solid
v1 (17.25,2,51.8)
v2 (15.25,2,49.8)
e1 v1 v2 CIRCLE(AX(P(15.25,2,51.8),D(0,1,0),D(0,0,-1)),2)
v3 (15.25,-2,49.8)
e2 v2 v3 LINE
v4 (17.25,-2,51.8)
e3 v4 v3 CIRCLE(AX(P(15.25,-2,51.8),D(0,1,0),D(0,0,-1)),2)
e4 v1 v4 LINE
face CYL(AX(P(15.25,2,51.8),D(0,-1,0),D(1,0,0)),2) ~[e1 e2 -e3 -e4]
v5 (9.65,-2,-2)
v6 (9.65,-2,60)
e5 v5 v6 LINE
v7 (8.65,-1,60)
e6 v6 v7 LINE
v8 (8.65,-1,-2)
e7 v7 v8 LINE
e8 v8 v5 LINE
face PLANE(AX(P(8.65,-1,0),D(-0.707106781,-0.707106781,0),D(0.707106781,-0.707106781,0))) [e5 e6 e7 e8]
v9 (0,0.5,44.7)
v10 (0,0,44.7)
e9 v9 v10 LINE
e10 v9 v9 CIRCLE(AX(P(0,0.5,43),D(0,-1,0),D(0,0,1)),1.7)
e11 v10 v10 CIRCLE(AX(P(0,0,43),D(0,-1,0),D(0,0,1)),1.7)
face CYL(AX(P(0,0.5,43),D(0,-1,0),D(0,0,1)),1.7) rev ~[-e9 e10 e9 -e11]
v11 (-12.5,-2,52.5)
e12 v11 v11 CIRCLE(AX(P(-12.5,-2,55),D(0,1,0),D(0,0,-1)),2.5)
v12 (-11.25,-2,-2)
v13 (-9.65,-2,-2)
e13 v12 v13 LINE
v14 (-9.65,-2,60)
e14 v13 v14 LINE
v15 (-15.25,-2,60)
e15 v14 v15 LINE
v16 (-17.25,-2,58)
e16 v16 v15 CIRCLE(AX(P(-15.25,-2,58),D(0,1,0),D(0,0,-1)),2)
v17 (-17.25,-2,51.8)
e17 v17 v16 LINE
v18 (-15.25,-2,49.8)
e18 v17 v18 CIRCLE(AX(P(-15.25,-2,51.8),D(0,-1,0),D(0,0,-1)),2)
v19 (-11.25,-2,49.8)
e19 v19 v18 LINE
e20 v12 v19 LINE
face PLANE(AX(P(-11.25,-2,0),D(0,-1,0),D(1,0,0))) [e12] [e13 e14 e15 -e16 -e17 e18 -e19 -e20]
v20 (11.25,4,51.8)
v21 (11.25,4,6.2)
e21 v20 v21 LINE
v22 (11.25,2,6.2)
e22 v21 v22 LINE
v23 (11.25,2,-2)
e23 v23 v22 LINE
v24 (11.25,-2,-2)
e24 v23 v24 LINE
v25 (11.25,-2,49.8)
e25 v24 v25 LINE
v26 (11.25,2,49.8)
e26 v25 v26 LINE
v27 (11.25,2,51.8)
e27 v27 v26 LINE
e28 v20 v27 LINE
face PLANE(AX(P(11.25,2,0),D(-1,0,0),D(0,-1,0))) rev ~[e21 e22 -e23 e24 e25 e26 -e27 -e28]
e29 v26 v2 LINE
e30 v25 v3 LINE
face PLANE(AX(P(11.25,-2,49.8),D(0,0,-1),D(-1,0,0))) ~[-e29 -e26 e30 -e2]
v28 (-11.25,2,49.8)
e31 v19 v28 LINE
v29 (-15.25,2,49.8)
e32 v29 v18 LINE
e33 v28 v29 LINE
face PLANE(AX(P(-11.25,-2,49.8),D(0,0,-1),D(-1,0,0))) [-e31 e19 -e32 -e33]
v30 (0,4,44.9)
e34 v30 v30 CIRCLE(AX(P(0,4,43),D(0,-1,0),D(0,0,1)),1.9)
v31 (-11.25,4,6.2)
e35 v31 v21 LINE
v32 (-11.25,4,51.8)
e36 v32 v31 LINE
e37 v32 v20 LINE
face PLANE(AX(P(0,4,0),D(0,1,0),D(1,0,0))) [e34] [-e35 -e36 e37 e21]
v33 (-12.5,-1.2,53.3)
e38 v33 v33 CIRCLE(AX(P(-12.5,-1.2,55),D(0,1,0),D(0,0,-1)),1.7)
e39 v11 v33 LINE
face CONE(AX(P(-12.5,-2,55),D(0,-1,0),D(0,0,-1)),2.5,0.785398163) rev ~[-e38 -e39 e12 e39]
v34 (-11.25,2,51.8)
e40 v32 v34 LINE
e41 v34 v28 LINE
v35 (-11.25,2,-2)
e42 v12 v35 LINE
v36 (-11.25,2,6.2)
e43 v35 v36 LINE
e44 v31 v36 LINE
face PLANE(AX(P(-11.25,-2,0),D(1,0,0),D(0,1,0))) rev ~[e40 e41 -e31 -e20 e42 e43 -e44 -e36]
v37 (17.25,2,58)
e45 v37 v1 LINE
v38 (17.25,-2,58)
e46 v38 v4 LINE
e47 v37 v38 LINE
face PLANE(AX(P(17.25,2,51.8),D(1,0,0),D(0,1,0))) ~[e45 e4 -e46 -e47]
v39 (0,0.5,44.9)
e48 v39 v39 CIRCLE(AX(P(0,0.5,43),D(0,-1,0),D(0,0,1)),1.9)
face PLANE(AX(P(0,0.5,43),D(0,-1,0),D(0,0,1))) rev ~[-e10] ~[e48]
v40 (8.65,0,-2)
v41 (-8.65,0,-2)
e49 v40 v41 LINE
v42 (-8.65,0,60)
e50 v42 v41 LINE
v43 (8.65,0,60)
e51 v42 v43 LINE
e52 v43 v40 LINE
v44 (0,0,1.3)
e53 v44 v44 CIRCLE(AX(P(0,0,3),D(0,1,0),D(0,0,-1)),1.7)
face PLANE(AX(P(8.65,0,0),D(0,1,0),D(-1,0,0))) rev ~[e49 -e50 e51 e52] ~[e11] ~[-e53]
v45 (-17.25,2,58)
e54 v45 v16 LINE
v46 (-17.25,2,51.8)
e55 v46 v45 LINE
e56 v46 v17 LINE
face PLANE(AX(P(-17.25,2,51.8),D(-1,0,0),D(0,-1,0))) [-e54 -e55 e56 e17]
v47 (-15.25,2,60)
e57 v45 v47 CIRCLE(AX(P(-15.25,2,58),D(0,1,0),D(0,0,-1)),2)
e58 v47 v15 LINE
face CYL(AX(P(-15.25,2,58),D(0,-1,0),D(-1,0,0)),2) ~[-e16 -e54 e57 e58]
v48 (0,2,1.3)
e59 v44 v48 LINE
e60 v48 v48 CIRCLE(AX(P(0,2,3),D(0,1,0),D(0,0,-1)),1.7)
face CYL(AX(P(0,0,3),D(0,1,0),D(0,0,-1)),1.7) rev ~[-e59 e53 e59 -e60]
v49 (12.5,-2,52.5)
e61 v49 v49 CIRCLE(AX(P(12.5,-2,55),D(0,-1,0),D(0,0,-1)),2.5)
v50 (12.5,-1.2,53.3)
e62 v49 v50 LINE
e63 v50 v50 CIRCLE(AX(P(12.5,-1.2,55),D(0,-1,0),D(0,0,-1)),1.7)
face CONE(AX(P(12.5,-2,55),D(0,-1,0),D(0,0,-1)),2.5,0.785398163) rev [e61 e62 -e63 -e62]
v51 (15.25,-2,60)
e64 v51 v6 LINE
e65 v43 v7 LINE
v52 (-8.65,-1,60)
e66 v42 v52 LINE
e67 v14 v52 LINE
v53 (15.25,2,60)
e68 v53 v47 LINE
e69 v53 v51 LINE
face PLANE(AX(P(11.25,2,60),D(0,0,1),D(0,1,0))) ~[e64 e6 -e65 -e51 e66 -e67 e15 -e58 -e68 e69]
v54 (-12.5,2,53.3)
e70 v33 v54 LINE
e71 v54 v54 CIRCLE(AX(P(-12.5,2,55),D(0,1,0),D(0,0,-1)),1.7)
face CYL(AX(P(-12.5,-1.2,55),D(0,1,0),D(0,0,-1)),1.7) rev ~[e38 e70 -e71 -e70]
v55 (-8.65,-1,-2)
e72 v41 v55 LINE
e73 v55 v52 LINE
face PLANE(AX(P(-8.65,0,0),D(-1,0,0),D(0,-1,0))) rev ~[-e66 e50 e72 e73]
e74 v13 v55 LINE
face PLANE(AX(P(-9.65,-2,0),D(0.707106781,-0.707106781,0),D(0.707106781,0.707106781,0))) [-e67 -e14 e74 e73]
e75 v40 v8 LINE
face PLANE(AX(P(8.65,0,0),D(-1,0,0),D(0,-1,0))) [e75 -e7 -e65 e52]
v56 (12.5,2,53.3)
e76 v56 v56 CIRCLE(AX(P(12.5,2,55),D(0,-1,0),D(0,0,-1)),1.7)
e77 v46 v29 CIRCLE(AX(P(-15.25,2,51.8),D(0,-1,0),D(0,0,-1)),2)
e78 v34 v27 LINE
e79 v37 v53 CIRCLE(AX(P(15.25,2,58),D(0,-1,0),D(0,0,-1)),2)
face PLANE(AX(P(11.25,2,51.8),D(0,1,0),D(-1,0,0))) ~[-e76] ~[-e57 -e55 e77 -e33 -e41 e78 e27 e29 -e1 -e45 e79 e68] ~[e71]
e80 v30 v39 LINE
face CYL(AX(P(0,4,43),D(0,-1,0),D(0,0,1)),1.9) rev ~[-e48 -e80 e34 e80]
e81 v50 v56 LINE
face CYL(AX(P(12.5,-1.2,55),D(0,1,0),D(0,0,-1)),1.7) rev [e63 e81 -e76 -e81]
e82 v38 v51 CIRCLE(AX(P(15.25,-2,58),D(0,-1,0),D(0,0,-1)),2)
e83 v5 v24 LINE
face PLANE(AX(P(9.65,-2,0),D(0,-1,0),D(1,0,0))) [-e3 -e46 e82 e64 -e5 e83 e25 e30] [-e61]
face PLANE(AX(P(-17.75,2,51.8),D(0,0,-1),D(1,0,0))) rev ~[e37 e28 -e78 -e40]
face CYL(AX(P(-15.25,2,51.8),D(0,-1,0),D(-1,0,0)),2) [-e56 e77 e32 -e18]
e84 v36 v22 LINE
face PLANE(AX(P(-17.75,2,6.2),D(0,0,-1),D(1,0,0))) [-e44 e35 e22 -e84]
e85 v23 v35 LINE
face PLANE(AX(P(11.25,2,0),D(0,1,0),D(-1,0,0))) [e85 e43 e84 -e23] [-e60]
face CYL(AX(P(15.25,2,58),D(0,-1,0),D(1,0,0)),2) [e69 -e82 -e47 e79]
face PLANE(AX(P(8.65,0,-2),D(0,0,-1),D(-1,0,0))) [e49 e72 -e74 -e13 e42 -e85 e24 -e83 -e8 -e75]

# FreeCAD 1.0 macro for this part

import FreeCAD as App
import Part
import Sketcher
Q = App.Units.Quantity


def edges_at(feature, points):
    """Names of the edges that pass closest to the given points."""
    edges = feature.Shape.Edges
    near = lambda p: min(range(len(edges)), key=lambda i: edges[i].distToShape(Part.Vertex(*p))[0])
    return sorted({f"Edge{near(p) + 1}" for p in points})

doc = App.newDocument("Part")
body = doc.addObject("PartDesign::Body", "Body")

# Sketch on XZ plane
sketch1 = body.newObject("Sketcher::SketchObject", "Sketch")
sketch1.AttachmentSupport = (doc.getObject("XZ_Plane"), [""])
sketch1.MapMode = "FlatFace"
sketch1.addGeometry([
    Part.LineSegment(App.Vector(-18, 0, 0), App.Vector(-18, 60, 0)),
    Part.LineSegment(App.Vector(-18, 60, 0), App.Vector(18, 60, 0)),
    Part.LineSegment(App.Vector(18, 60, 0), App.Vector(18, 0, 0)),
    Part.LineSegment(App.Vector(18, 0, 0), App.Vector(-18, 0, 0)),
], False)
sketch1.addConstraint([
    Sketcher.Constraint("Coincident", 0, 2, 1, 1),
    Sketcher.Constraint("Coincident", 1, 2, 2, 1),
    Sketcher.Constraint("Coincident", 2, 2, 3, 1),
    Sketcher.Constraint("Coincident", 3, 2, 0, 1),
    Sketcher.Constraint("Vertical", 0),
    Sketcher.Constraint("Horizontal", 1),
    Sketcher.Constraint("Vertical", 2),
    Sketcher.Constraint("Horizontal", 3),
    Sketcher.Constraint("Symmetric", 2, 2, 3, 2, -1, 1),
    Sketcher.Constraint("DistanceY", 0, 1, 0, 2, Q("60 mm")),
    Sketcher.Constraint("DistanceX", 1, 1, 1, 2, Q("35.5 mm")),
])
pad1 = body.newObject("PartDesign::Pad", "Pad")
pad1.Profile = sketch1
pad1.Length = 2
pad1.Reversed = True

# Sketch on XZ plane
sketch2 = body.newObject("Sketcher::SketchObject", "Sketch001")
sketch2.AttachmentSupport = (doc.getObject("XZ_Plane"), [""])
sketch2.MapMode = "FlatFace"
sketch2.AttachmentOffset = App.Placement(App.Vector(0, 0, -2), App.Rotation())
sketch2.addGeometry([
    Part.LineSegment(App.Vector(18, 6, 0), App.Vector(-18, 6, 0)),
    Part.LineSegment(App.Vector(-18, 6, 0), App.Vector(-18, 52, 0)),
    Part.LineSegment(App.Vector(-18, 52, 0), App.Vector(18, 52, 0)),
    Part.LineSegment(App.Vector(18, 52, 0), App.Vector(18, 6, 0)),
], False)
sketch2.addConstraint([
    Sketcher.Constraint("Coincident", 0, 2, 1, 1),
    Sketcher.Constraint("Coincident", 1, 2, 2, 1),
    Sketcher.Constraint("Coincident", 2, 2, 3, 1),
    Sketcher.Constraint("Coincident", 3, 2, 0, 1),
    Sketcher.Constraint("Horizontal", 0),
    Sketcher.Constraint("Vertical", 1),
    Sketcher.Constraint("Horizontal", 2),
    Sketcher.Constraint("Vertical", 3),
    Sketcher.Constraint("DistanceY", -1, 1, 0, 2, Q("6.2 mm")),
    Sketcher.Constraint("DistanceY", -1, 1, 1, 2, Q("51.8 mm")),
    Sketcher.Constraint("DistanceX", 0, 2, 0, 1, Q("35.5 mm")),
    Sketcher.Constraint("DistanceX", 0, 2, -1, 1, Q("17.75 mm")),
])
pad2 = body.newObject("PartDesign::Pad", "Pad001")
pad2.Profile = sketch2
pad2.Length = 2
pad2.Reversed = True

# Sketch on XZ plane
sketch3 = body.newObject("Sketcher::SketchObject", "Sketch002")
sketch3.AttachmentSupport = (doc.getObject("XZ_Plane"), [""])
sketch3.MapMode = "FlatFace"
sketch3.addGeometry([
    Part.LineSegment(App.Vector(-8.7, 60, 0), App.Vector(-11.2, 60, 0)),  # 0
    Part.LineSegment(App.Vector(-11.2, 60, 0), App.Vector(-11.2, 0, 0)),  # 1
    Part.LineSegment(App.Vector(-11.2, 0, 0), App.Vector(-8.7, 0, 0)),  # 2
    Part.LineSegment(App.Vector(-8.7, 0, 0), App.Vector(-8.7, 60, 0)),  # 3
    Part.LineSegment(App.Vector(11.2, 60, 0), App.Vector(8.7, 60, 0)),  # 4
    Part.LineSegment(App.Vector(8.7, 60, 0), App.Vector(8.7, 0, 0)),  # 5
    Part.LineSegment(App.Vector(8.7, 0, 0), App.Vector(11.2, 0, 0)),  # 6
    Part.LineSegment(App.Vector(11.2, 0, 0), App.Vector(11.2, 60, 0)),  # 7
], False)
sketch3.addConstraint([
    Sketcher.Constraint("Coincident", 0, 2, 1, 1),
    Sketcher.Constraint("Coincident", 1, 2, 2, 1),
    Sketcher.Constraint("Coincident", 2, 2, 3, 1),
    Sketcher.Constraint("Coincident", 3, 2, 0, 1),
    Sketcher.Constraint("Coincident", 4, 2, 5, 1),
    Sketcher.Constraint("Coincident", 5, 2, 6, 1),
    Sketcher.Constraint("Coincident", 6, 2, 7, 1),
    Sketcher.Constraint("Coincident", 7, 2, 4, 1),
    Sketcher.Constraint("Horizontal", 0),
    Sketcher.Constraint("Vertical", 1),
    Sketcher.Constraint("Horizontal", 2),
    Sketcher.Constraint("Vertical", 3),
    Sketcher.Constraint("Horizontal", 4),
    Sketcher.Constraint("Vertical", 5),
    Sketcher.Constraint("Horizontal", 6),
    Sketcher.Constraint("Vertical", 7),
    Sketcher.Constraint("Symmetric", 2, 2, 5, 2, -1, 1),
    Sketcher.Constraint("Symmetric", 1, 2, 6, 2, -2),
    Sketcher.Constraint("Horizontal", 3, 2, 4, 2),
    Sketcher.Constraint("DistanceX", 3, 2, 4, 2, Q("17.3 mm")),
    Sketcher.Constraint("DistanceX", 1, 2, 6, 2, Q("22.5 mm")),
    Sketcher.Constraint("DistanceY", 1, 2, 1, 1, Q("60 mm")),
])
pad3 = body.newObject("PartDesign::Pad", "Pad002")
pad3.Profile = sketch3
pad3.Length = 2

# Sketch on XZ plane
sketch4 = body.newObject("Sketcher::SketchObject", "Sketch003")
sketch4.AttachmentSupport = (doc.getObject("XZ_Plane"), [""])
sketch4.MapMode = "FlatFace"
sketch4.AttachmentOffset = App.Placement(App.Vector(0, 0, 2), App.Rotation())
sketch4.addGeometry([
    Part.LineSegment(App.Vector(11, 0, 0), App.Vector(18, 0, 0)),
    Part.LineSegment(App.Vector(18, 0, 0), App.Vector(18, 60, 0)),
    Part.LineSegment(App.Vector(18, 60, 0), App.Vector(11, 60, 0)),
    Part.LineSegment(App.Vector(11, 60, 0), App.Vector(11, 0, 0)),
], False)
sketch4.addConstraint([
    Sketcher.Constraint("Coincident", 0, 2, 1, 1),
    Sketcher.Constraint("Coincident", 1, 2, 2, 1),
    Sketcher.Constraint("Coincident", 2, 2, 3, 1),
    Sketcher.Constraint("Coincident", 3, 2, 0, 1),
    Sketcher.Constraint("Horizontal", 0),
    Sketcher.Constraint("Vertical", 1),
    Sketcher.Constraint("Horizontal", 2),
    Sketcher.Constraint("Vertical", 3),
    Sketcher.Constraint("PointOnObject", 0, 2, -1),
    Sketcher.Constraint("DistanceX", 0, 1, 0, 2, Q("6.5 mm")),
    Sketcher.Constraint("DistanceY", 1, 1, 1, 2, Q("60 mm")),
    Sketcher.Constraint("DistanceX", -1, 1, 0, 2, Q("17.75 mm")),
])
pocket1 = body.newObject("PartDesign::Pocket", "Pocket")
pocket1.Profile = sketch4
pocket1.Type = "ThroughAll"
doc.recompute()

mirrored = body.newObject("PartDesign::Mirrored", "Mirrored")
mirrored.Originals = [pocket1]
mirrored.MirrorPlane = (doc.getObject("YZ_Plane"), [""])
body.Tip = mirrored

# Sketch on XZ plane
sketch5 = body.newObject("Sketcher::SketchObject", "Sketch004")
sketch5.AttachmentSupport = (doc.getObject("XZ_Plane"), [""])
sketch5.MapMode = "FlatFace"
sketch5.addGeometry(Part.Circle(App.Vector(0, 3, 0), App.Vector(0, 0, 1), 1.7), False)
sketch5.addConstraint([
    Sketcher.Constraint("PointOnObject", 0, 3, -2),
    Sketcher.Constraint("Diameter", 0, Q("3.4 mm")),
    Sketcher.Constraint("DistanceY", -1, 1, 0, 3, Q("3 mm")),
])
doc.recompute()
hole = body.newObject("PartDesign::Hole", "Hole")
hole.Profile = sketch5
hole.ThreadType = "None"
hole.Diameter = 3.4
hole.DepthType = "Dimension"
hole.Depth = 4
hole.DrillPoint = "Flat"

# Sketch on XZ plane
sketch6 = body.newObject("Sketcher::SketchObject", "Sketch005")
sketch6.AttachmentSupport = (doc.getObject("XZ_Plane"), [""])
sketch6.MapMode = "FlatFace"
sketch6.AttachmentOffset = App.Placement(App.Vector(0, 0, -4), App.Rotation())
sketch6.addGeometry(Part.Circle(App.Vector(0, 43, 0), App.Vector(0, 0, 1), 1.7), False)
sketch6.addConstraint([
    Sketcher.Constraint("PointOnObject", 0, 3, -2),
    Sketcher.Constraint("Diameter", 0, Q("3.4 mm")),
    Sketcher.Constraint("DistanceY", -1, 1, 0, 3, Q("43 mm")),
])
doc.recompute()
hole2 = body.newObject("PartDesign::Hole", "Hole001")
hole2.Profile = sketch6
hole2.ThreadType = "None"
hole2.Diameter = 3.4
hole2.DepthType = "Dimension"
hole2.Depth = 4
hole2.DrillPoint = "Flat"
hole2.HoleCutType = "Counterbore"
hole2.HoleCutDiameter = 3.8
hole2.HoleCutDepth = 3.5
hole2.Reversed = True

# Sketch on YZ plane
sketch7 = body.newObject("Sketcher::SketchObject", "Sketch006")
sketch7.AttachmentSupport = (doc.getObject("YZ_Plane"), [""])
sketch7.MapMode = "FlatFace"
sketch7.AttachmentOffset = App.Placement(App.Vector(0, 0, -11.25), App.Rotation())
sketch7.addGeometry([
    Part.LineSegment(App.Vector(-2, 51.8, 0), App.Vector(-2, 60, 0)),
    Part.LineSegment(App.Vector(-2, 60, 0), App.Vector(2, 60, 0)),
    Part.LineSegment(App.Vector(2, 60, 0), App.Vector(2, 51.8, 0)),
    Part.LineSegment(App.Vector(2, 51.8, 0), App.Vector(-2, 51.8, 0)),
], False)
sketch7.addConstraint([
    Sketcher.Constraint("Coincident", 0, 2, 1, 1),
    Sketcher.Constraint("Coincident", 1, 2, 2, 1),
    Sketcher.Constraint("Coincident", 2, 2, 3, 1),
    Sketcher.Constraint("Coincident", 3, 2, 0, 1),
    Sketcher.Constraint("Vertical", 0),
    Sketcher.Constraint("Horizontal", 1),
    Sketcher.Constraint("Vertical", 2),
    Sketcher.Constraint("Horizontal", 3),
    Sketcher.Constraint("DistanceX", 1, 1, 1, 2, Q("4 mm")),
    Sketcher.Constraint("DistanceY", 0, 1, 0, 2, Q("8.2 mm")),
    Sketcher.Constraint("DistanceX", 0, 2, -1, 1, Q("2 mm")),
    Sketcher.Constraint("DistanceY", -1, 1, 0, 2, Q("60 mm")),
])
pad4 = body.newObject("PartDesign::Pad", "Pad003")
pad4.Profile = sketch7
pad4.Length = 6
pad4.Reversed = True

# Sketch on XZ plane
sketch8 = body.newObject("Sketcher::SketchObject", "Sketch007")
sketch8.AttachmentSupport = (doc.getObject("XZ_Plane"), [""])
sketch8.MapMode = "FlatFace"
sketch8.AttachmentOffset = App.Placement(App.Vector(0, 0, 2), App.Rotation())
sketch8.addGeometry(Part.Circle(App.Vector(-12.5, 55, 0), App.Vector(0, 0, 1), 1.7), False)
sketch8.addConstraint([
    Sketcher.Constraint("Diameter", 0, Q("3.4 mm")),
    Sketcher.Constraint("DistanceY", -1, 1, 0, 3, Q("55 mm")),
    Sketcher.Constraint("DistanceX", 0, 3, -1, 1, Q("12.5 mm")),
])
doc.recompute()
hole3 = body.newObject("PartDesign::Hole", "Hole002")
hole3.Profile = sketch8
hole3.ThreadType = "None"
hole3.Diameter = 3.4
hole3.DepthType = "Dimension"
hole3.Depth = 4
hole3.DrillPoint = "Flat"
hole3.HoleCutType = "Countersink"
hole3.HoleCutDiameter = 5
hole3.HoleCutCountersinkAngle = 90

# Sketch on XY plane
sketch9 = body.newObject("Sketcher::SketchObject", "Sketch008")
sketch9.AttachmentSupport = (doc.getObject("XY_Plane"), [""])
sketch9.MapMode = "FlatFace"
sketch9.AttachmentOffset = App.Placement(App.Vector(0, 0, 51.8), App.Rotation())
sketch9.addGeometry([
    Part.LineSegment(App.Vector(-11.2, 2, 0), App.Vector(-11.2, -2, 0)),
    Part.LineSegment(App.Vector(-11.2, -2, 0), App.Vector(-17.2, -2, 0)),
    Part.LineSegment(App.Vector(-17.2, -2, 0), App.Vector(-17.2, 2, 0)),
    Part.LineSegment(App.Vector(-17.2, 2, 0), App.Vector(-11.2, 2, 0)),
], False)
sketch9.addConstraint([
    Sketcher.Constraint("Coincident", 0, 2, 1, 1),
    Sketcher.Constraint("Coincident", 1, 2, 2, 1),
    Sketcher.Constraint("Coincident", 2, 2, 3, 1),
    Sketcher.Constraint("Coincident", 3, 2, 0, 1),
    Sketcher.Constraint("Vertical", 0),
    Sketcher.Constraint("Horizontal", 1),
    Sketcher.Constraint("Vertical", 2),
    Sketcher.Constraint("Horizontal", 3),
    Sketcher.Constraint("DistanceX", 1, 2, 1, 1, Q("6 mm")),
    Sketcher.Constraint("DistanceY", 0, 2, 0, 1, Q("4 mm")),
    Sketcher.Constraint("DistanceY", 0, 2, -1, 1, Q("2 mm")),
    Sketcher.Constraint("DistanceX", 0, 2, -1, 1, Q("11.25 mm")),
])
pad5 = body.newObject("PartDesign::Pad", "Pad004")
pad5.Profile = sketch9
pad5.Length = 2
pad5.Reversed = True
doc.recompute()

fillet = body.newObject("PartDesign::Fillet", "Fillet")
fillet.Base = (pad5, edges_at(pad5, [(-17.25, 0, 60), (-17.25, 0, 49.8)]))
fillet.Radius = 2
doc.recompute()

mirrored2 = body.newObject("PartDesign::Mirrored", "Mirrored001")
mirrored2.Originals = [pad4, hole3, pad5, fillet]
mirrored2.MirrorPlane = (doc.getObject("YZ_Plane"), [""])
body.Tip = mirrored2
doc.recompute()

chamfer = body.newObject("PartDesign::Chamfer", "Chamfer")
chamfer.Base = (mirrored2, edges_at(mirrored2, [(-8.65, -2, 30), (8.65, -2, 30)]))
chamfer.Size = 1

# Sketch on XY plane
sketch10 = body.newObject("Sketcher::SketchObject", "Sketch009")
sketch10.AttachmentSupport = (doc.getObject("XY_Plane"), [""])
sketch10.MapMode = "FlatFace"
sketch10.addGeometry([
    Part.LineSegment(App.Vector(9.7, -2, 0), App.Vector(8.7, -1, 0)),  # 0
    Part.LineSegment(App.Vector(8.7, -1, 0), App.Vector(8.7, 0, 0)),  # 1
    Part.LineSegment(App.Vector(8.7, 0, 0), App.Vector(-8.7, 0, 0)),  # 2
    Part.LineSegment(App.Vector(-8.7, 0, 0), App.Vector(-8.7, -1, 0)),  # 3
    Part.LineSegment(App.Vector(-8.7, -1, 0), App.Vector(-9.7, -2, 0)),  # 4
    Part.LineSegment(App.Vector(-9.7, -2, 0), App.Vector(-11.2, -2, 0)),  # 5
    Part.LineSegment(App.Vector(-11.2, -2, 0), App.Vector(-11.2, 2, 0)),  # 6
    Part.LineSegment(App.Vector(-11.2, 2, 0), App.Vector(11.2, 2, 0)),  # 7
    Part.LineSegment(App.Vector(11.2, 2, 0), App.Vector(11.2, -2, 0)),  # 8
    Part.LineSegment(App.Vector(11.2, -2, 0), App.Vector(9.7, -2, 0)),  # 9
], False)
sketch10.addConstraint([
    Sketcher.Constraint("Coincident", 0, 2, 1, 1),
    Sketcher.Constraint("Coincident", 1, 2, 2, 1),
    Sketcher.Constraint("Coincident", 2, 2, 3, 1),
    Sketcher.Constraint("Coincident", 3, 2, 4, 1),
    Sketcher.Constraint("Coincident", 4, 2, 5, 1),
    Sketcher.Constraint("Coincident", 5, 2, 6, 1),
    Sketcher.Constraint("Coincident", 6, 2, 7, 1),
    Sketcher.Constraint("Coincident", 7, 2, 8, 1),
    Sketcher.Constraint("Coincident", 8, 2, 9, 1),
    Sketcher.Constraint("Coincident", 9, 2, 0, 1),
    Sketcher.Constraint("Vertical", 1),
    Sketcher.Constraint("Horizontal", 2),
    Sketcher.Constraint("Vertical", 3),
    Sketcher.Constraint("Horizontal", 5),
    Sketcher.Constraint("Vertical", 6),
    Sketcher.Constraint("Horizontal", 7),
    Sketcher.Constraint("Vertical", 8),
    Sketcher.Constraint("Horizontal", 9),
    Sketcher.Constraint("Symmetric", 1, 2, 2, 2, -1, 1),
    Sketcher.Constraint("Symmetric", 5, 2, 7, 2, -1, 1),
    Sketcher.Constraint("Symmetric", 4, 2, 9, 2, -2),
    Sketcher.Constraint("Perpendicular", 0, 4),
    Sketcher.Constraint("Horizontal", 0, 2, 3, 2),
    Sketcher.Constraint("DistanceY", 1, 1, 1, 2, Q("1 mm")),
    Sketcher.Constraint("DistanceY", 6, 1, 6, 2, Q("4 mm")),
    Sketcher.Constraint("DistanceX", 2, 2, 2, 1, Q("17.3 mm")),
    Sketcher.Constraint("DistanceX", 5, 2, 5, 1, Q("1.6 mm")),
])
pad6 = body.newObject("PartDesign::Pad", "Pad005")
pad6.Profile = sketch10
pad6.Length = 2
pad6.Reversed = True

doc.recompute()
